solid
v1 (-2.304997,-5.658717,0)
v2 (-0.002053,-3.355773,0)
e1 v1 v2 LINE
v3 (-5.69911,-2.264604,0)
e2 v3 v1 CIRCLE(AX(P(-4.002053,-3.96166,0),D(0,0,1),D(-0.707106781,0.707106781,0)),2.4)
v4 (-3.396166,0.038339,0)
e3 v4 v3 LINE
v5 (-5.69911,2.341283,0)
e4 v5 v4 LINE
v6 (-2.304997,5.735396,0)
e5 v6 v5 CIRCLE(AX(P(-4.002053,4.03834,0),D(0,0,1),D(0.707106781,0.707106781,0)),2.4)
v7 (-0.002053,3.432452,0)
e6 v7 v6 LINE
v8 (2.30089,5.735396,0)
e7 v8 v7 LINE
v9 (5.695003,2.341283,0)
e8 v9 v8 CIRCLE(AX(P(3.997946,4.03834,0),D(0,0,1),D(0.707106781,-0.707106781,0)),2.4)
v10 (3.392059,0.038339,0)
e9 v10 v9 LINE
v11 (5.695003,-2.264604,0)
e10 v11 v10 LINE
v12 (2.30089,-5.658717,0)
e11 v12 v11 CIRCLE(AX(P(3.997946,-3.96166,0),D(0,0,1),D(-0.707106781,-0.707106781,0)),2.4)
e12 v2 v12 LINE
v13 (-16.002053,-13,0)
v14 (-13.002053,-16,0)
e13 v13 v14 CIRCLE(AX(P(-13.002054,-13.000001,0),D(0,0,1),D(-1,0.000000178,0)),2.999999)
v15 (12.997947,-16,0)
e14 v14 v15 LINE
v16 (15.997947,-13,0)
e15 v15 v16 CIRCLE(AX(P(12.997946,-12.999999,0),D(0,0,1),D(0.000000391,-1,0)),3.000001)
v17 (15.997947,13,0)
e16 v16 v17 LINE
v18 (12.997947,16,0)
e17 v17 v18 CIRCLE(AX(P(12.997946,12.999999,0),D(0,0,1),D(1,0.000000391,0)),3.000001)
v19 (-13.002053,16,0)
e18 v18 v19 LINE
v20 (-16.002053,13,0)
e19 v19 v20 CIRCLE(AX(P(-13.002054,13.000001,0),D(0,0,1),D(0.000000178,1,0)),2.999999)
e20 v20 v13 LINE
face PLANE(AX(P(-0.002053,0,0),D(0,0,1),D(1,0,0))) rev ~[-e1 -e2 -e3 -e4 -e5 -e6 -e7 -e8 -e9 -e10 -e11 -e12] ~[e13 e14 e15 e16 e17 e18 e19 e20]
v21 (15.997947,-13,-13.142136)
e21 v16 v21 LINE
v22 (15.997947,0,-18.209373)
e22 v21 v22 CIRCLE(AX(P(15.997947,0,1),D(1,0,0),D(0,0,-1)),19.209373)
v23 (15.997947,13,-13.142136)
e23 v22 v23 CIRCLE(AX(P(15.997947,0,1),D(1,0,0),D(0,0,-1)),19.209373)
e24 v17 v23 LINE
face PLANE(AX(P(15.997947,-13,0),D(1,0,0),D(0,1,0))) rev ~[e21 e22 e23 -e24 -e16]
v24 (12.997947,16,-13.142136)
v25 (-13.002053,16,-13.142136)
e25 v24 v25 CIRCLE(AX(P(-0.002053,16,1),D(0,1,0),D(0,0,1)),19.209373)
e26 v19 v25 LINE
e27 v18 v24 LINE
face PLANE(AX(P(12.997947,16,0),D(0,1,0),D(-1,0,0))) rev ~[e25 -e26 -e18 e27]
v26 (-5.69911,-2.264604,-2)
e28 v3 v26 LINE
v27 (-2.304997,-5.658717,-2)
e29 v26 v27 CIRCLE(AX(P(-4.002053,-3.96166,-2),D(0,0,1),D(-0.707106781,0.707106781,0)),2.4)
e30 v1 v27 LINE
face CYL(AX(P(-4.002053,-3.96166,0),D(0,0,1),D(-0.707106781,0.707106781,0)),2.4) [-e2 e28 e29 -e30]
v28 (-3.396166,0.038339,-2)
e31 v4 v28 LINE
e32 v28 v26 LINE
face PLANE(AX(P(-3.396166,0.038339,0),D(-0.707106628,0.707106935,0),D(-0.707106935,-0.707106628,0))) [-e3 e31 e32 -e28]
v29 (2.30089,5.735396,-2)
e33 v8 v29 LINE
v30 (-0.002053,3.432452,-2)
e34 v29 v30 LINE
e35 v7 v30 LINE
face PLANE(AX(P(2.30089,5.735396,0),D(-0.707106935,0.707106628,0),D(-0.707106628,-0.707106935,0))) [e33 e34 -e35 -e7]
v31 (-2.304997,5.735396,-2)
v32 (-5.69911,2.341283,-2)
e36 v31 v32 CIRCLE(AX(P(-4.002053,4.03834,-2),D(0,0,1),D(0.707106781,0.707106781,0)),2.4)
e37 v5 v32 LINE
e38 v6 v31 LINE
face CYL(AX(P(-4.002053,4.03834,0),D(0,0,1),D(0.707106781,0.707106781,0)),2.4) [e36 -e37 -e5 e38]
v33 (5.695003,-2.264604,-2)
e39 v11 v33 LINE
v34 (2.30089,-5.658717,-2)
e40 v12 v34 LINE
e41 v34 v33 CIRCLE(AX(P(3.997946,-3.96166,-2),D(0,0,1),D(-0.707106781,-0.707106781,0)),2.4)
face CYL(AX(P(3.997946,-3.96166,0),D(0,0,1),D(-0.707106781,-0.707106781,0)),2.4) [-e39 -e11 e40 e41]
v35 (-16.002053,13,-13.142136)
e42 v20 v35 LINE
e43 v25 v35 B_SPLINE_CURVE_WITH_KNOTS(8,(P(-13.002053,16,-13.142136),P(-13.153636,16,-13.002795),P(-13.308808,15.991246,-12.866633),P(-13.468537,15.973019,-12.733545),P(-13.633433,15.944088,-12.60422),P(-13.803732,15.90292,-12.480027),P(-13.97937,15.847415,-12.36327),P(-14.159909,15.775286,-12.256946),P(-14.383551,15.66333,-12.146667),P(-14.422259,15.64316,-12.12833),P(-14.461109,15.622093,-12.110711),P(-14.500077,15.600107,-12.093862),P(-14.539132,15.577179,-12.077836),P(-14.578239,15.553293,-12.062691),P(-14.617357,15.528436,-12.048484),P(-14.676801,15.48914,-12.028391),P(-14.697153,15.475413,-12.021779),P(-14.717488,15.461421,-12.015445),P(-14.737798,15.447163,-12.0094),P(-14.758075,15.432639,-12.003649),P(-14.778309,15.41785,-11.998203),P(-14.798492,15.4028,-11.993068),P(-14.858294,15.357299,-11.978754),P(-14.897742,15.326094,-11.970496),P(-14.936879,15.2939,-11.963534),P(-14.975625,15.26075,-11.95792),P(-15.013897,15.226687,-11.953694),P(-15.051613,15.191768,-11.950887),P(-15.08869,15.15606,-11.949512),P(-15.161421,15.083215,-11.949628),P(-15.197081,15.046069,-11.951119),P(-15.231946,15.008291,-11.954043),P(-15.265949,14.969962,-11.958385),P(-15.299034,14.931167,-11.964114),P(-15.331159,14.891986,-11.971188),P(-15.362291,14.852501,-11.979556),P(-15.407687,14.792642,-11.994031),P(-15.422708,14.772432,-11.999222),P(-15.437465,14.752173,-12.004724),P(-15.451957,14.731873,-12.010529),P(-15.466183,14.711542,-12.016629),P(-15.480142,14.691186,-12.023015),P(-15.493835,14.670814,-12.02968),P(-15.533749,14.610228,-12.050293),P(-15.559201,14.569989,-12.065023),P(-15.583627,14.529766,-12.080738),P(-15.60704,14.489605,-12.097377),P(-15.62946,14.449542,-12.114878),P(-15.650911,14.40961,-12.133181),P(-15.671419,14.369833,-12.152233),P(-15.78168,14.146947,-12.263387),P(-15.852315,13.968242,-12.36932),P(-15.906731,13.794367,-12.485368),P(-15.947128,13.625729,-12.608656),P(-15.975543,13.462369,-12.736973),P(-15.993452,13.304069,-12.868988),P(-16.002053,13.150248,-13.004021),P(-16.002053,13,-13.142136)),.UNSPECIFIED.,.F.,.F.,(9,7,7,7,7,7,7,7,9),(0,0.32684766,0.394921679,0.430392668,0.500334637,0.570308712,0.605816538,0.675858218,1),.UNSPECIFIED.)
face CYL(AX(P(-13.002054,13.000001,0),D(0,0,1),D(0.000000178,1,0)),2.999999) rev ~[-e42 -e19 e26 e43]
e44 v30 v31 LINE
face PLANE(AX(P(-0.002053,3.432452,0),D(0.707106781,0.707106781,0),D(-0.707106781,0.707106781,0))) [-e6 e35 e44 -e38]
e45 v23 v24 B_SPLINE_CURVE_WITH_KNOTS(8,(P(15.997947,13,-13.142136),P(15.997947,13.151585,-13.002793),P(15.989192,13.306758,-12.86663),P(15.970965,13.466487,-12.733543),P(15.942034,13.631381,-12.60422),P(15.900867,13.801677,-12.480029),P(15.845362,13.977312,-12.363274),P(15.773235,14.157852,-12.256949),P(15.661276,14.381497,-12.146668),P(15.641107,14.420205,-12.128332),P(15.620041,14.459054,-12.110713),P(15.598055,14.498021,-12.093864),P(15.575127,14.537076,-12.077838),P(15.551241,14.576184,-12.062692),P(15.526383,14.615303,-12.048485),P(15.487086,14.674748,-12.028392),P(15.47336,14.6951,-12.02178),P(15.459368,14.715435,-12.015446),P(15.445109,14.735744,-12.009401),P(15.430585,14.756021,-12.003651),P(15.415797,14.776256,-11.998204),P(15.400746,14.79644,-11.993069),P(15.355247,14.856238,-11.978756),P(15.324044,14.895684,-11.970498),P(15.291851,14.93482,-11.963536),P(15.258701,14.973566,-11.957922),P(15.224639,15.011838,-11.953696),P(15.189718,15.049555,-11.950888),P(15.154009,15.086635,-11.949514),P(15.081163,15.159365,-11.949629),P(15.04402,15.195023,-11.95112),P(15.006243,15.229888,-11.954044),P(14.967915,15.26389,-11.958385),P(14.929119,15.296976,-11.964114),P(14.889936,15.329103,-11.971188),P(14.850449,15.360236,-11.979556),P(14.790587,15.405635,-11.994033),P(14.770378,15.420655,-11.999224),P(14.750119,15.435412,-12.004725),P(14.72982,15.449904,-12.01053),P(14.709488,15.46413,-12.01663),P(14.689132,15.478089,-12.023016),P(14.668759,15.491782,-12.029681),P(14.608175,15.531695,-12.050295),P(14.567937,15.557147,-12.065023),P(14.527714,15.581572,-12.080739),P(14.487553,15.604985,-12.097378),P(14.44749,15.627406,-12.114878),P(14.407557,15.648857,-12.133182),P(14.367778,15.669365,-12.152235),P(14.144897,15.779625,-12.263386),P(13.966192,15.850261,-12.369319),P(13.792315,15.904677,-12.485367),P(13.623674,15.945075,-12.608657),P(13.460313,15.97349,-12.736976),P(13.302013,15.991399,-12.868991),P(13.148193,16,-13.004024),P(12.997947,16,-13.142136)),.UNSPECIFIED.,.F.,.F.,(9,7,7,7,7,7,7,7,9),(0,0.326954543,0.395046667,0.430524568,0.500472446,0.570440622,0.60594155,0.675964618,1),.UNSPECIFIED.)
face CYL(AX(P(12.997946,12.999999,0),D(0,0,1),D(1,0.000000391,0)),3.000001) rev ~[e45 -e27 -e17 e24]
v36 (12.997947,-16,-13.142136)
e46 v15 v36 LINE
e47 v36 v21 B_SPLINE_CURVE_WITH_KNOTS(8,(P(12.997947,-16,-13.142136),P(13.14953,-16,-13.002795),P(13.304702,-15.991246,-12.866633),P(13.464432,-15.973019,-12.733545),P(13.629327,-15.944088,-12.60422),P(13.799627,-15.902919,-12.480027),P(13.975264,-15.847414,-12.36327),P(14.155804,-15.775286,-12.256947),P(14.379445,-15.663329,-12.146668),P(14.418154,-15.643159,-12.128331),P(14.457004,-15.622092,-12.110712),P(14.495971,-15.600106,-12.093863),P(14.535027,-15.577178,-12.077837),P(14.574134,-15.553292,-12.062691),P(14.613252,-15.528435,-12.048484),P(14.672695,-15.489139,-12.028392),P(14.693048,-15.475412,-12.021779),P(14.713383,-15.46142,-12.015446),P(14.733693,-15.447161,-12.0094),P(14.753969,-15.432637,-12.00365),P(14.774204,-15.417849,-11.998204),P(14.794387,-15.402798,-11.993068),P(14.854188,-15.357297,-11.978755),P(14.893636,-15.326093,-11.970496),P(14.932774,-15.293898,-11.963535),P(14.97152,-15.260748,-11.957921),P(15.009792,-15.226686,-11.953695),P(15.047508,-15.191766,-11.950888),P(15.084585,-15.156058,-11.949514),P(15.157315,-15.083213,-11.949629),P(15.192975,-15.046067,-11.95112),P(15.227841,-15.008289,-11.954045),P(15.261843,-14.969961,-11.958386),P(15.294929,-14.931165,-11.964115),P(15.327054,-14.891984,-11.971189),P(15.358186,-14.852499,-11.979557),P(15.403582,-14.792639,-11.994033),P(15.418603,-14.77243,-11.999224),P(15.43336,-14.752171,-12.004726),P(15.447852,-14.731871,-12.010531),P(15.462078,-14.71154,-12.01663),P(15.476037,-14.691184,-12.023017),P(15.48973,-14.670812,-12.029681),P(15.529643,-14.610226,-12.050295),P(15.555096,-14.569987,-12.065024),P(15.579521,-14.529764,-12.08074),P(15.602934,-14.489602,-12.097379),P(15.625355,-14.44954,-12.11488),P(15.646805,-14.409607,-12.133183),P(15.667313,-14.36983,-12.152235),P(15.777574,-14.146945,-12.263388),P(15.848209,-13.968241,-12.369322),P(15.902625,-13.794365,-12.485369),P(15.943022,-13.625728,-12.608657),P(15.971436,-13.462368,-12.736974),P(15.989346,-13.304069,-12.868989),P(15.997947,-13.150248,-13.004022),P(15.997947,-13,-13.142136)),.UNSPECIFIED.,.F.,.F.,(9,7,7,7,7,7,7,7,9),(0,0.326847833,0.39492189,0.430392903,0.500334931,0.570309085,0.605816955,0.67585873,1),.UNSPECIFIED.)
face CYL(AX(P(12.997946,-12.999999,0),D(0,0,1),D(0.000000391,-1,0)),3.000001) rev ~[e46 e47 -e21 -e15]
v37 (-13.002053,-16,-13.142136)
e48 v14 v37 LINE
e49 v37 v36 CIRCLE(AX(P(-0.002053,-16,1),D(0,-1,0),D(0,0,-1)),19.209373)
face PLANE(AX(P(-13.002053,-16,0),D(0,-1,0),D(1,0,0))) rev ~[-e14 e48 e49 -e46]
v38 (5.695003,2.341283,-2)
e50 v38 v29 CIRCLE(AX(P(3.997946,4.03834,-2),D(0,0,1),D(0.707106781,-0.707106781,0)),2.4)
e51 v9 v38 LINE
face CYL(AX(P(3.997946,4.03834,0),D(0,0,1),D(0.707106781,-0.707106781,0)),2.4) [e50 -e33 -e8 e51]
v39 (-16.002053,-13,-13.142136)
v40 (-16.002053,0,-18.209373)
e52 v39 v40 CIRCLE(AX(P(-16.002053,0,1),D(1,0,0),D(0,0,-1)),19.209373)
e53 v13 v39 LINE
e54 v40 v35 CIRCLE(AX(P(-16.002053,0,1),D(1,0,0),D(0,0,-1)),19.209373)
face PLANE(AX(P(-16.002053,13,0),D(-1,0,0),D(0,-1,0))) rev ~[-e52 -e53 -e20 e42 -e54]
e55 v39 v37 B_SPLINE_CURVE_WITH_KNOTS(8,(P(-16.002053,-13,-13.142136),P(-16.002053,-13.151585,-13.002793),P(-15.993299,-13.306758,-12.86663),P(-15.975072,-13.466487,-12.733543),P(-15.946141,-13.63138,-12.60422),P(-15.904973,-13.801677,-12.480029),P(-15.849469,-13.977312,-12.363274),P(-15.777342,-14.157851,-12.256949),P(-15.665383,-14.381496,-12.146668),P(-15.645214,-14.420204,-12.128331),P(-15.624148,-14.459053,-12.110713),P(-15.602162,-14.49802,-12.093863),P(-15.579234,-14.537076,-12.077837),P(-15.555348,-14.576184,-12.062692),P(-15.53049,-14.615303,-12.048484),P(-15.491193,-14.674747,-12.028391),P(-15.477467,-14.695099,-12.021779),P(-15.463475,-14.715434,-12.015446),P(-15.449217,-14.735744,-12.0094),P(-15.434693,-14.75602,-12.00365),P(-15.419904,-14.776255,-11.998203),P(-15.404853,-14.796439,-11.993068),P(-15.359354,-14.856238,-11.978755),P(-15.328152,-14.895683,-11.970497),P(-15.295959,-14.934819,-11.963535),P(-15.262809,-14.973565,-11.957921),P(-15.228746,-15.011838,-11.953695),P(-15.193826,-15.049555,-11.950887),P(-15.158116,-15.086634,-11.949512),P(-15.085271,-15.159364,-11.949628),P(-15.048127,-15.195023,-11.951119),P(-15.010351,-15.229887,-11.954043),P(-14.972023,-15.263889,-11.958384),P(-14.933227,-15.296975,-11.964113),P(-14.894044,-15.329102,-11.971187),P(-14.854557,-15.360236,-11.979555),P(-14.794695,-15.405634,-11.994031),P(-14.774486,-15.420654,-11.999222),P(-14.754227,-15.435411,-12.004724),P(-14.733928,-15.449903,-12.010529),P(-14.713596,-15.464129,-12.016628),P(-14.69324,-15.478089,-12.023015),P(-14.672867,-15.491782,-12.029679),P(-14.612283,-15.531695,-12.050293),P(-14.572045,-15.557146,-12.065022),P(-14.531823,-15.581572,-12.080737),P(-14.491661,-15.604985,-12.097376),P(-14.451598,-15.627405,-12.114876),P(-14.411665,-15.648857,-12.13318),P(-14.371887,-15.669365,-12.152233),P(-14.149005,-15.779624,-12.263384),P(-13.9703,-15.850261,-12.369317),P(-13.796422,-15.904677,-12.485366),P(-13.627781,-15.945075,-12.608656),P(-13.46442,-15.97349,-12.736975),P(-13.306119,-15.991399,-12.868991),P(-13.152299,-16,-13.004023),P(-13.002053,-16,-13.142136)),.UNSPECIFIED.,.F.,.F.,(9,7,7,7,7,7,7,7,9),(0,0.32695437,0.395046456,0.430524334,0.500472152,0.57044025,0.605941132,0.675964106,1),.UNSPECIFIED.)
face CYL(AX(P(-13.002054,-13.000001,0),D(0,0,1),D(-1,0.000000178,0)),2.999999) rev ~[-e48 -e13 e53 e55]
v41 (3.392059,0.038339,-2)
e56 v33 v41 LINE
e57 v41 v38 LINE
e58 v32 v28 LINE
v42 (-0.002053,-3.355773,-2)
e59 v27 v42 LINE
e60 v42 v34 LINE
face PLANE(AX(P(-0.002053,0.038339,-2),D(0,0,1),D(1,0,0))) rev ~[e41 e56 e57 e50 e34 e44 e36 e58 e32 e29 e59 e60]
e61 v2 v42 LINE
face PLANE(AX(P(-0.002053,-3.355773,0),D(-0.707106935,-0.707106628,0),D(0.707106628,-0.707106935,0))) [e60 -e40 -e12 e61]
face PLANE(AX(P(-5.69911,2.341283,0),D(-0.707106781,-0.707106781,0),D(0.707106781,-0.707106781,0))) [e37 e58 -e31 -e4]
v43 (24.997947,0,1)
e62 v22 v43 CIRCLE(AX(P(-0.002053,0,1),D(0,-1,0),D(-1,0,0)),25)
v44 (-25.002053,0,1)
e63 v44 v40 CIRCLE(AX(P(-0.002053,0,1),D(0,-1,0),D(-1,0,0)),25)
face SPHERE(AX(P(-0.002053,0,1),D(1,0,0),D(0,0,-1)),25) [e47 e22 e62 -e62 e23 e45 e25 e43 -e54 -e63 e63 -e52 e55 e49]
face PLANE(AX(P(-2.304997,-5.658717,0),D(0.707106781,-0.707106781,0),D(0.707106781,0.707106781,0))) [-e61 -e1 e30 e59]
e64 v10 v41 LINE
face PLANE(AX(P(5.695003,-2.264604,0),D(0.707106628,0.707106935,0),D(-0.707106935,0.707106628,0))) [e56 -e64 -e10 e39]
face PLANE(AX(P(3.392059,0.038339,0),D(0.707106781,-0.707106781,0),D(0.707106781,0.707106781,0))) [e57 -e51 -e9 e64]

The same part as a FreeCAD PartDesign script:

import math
import FreeCAD as App
import Part
import Sketcher
from FreeCAD import Vector
Q = App.Units.Quantity

doc = App.newDocument("Part")
body = doc.addObject("PartDesign::Body", "Body")

sketch1 = body.newObject("Sketcher::SketchObject", "Sketch")
sketch1.AttachmentSupport = (doc.getObject("XY_Plane"), [""])
sketch1.MapMode = "FlatFace"
sketch1.addGeometry([
    Part.LineSegment(Vector(0, 3.4, 0), Vector(-2.3, 5.7, 0)),
    Part.ArcOfCircle(Part.Circle(Vector(-4, 4, 0), Vector(0, 0, 1), 2.4), math.radians(45), math.radians(225)),
    Part.LineSegment(Vector(-5.7, 2.3, 0), Vector(-3.4, 0, 0)),
    Part.LineSegment(Vector(-3.4, 0, 0), Vector(-5.7, -2.3, 0)),
    Part.ArcOfCircle(Part.Circle(Vector(-4, -4, 0), Vector(0, 0, 1), 2.4), math.radians(135), math.radians(315)),
    Part.LineSegment(Vector(-2.3, -5.7, 0), Vector(0, -3.4, 0)),
    Part.LineSegment(Vector(0, -3.4, 0), Vector(2.3, -5.7, 0)),
    Part.ArcOfCircle(Part.Circle(Vector(4, -4, 0), Vector(0, 0, 1), 2.4), math.radians(-135), math.radians(45)),
    Part.LineSegment(Vector(5.7, -2.3, 0), Vector(3.4, 0, 0)),
    Part.LineSegment(Vector(3.4, 0, 0), Vector(5.7, 2.3, 0)),
    Part.ArcOfCircle(Part.Circle(Vector(4, 4, 0), Vector(0, 0, 1), 2.4), math.radians(-45), math.radians(135)),
    Part.LineSegment(Vector(2.3, 5.7, 0), Vector(0, 3.4, 0)),
], False)
sketch1.addConstraint([
    Sketcher.Constraint("Tangent", 0, 2, 1, 1),
    Sketcher.Constraint("Tangent", 1, 2, 2, 1),
    Sketcher.Constraint("Coincident", 2, 2, 3, 1),
    Sketcher.Constraint("Tangent", 3, 2, 4, 1),
    Sketcher.Constraint("Tangent", 4, 2, 5, 1),
    Sketcher.Constraint("Coincident", 5, 2, 6, 1),
    Sketcher.Constraint("Tangent", 6, 2, 7, 1),
    Sketcher.Constraint("Tangent", 7, 2, 8, 1),
    Sketcher.Constraint("Coincident", 8, 2, 9, 1),
    Sketcher.Constraint("Tangent", 9, 2, 10, 1),
    Sketcher.Constraint("Tangent", 10, 2, 11, 1),
    Sketcher.Constraint("Coincident", 11, 2, 0, 1),
    Sketcher.Constraint("Equal", 1, 4),
    Sketcher.Constraint("Equal", 4, 7),
    Sketcher.Constraint("Equal", 7, 10),
    Sketcher.Constraint("Parallel", 0, 2),
    Sketcher.Constraint("Perpendicular", 2, 3),
    Sketcher.Constraint("Parallel", 3, 5),
    Sketcher.Constraint("Perpendicular", 5, 6),
    Sketcher.Constraint("Parallel", 6, 8),
    Sketcher.Constraint("Perpendicular", 8, 9),
    Sketcher.Constraint("Parallel", 9, 11),
    Sketcher.Constraint("Horizontal", 4, 3, 7, 3),
    Sketcher.Constraint("Horizontal", 1, 3, 10, 3),
    Sketcher.Constraint("Horizontal", 4, 2, 6, 2),
    Sketcher.Constraint("Horizontal", 2, 2, 8, 2),
    Sketcher.Constraint("Vertical", 1, 3, 4, 3),
    Sketcher.Constraint("Equal", 0, 2),
    Sketcher.Constraint("Radius", 1, Q("2.4 mm")),
    Sketcher.Constraint("DistanceY", 4, 3, 1, 3, Q("8 mm")),
    Sketcher.Constraint("DistanceY", -1, 1, 1, 3, Q("4.03834 mm")),
    Sketcher.Constraint("DistanceX", 1, 2, -1, 1, Q("5.69911 mm")),
])
pad1 = body.newObject("PartDesign::Pad", "Pad")
pad1.Profile = sketch1
pad1.Length = 2
body2 = doc.addObject("PartDesign::Body", "Body001")

sketch2 = body2.newObject("Sketcher::SketchObject", "Sketch001")
sketch2.AttachmentSupport = (doc.getObject("XZ_Plane001"), [""])
sketch2.MapMode = "FlatFace"
sketch2.addGeometry([
    Part.LineSegment(Vector(25, 1, 0), Vector(-25, 1, 0)),
    Part.ArcOfCircle(Part.Circle(Vector(0, 1, 0), Vector(0, 0, 1), 25), math.radians(180), math.radians(360)),
], False)
sketch2.addGeometry(Part.LineSegment(Vector(-25, 1, 0), Vector(25, 1, 0)), True)
sketch2.addConstraint([
    Sketcher.Constraint("Coincident", 0, 1, 1, 2),
    Sketcher.Constraint("Coincident", 1, 1, 0, 2),
    Sketcher.Constraint("Horizontal", 0),
    Sketcher.Constraint("Horizontal", 2),
    Sketcher.Constraint("Coincident", 2, 1, 1, 1),
    Sketcher.Constraint("Horizontal", 1, 3, 0, 1),
    Sketcher.Constraint("Equal", 0, 2),
    Sketcher.Constraint("Radius", 1, Q("25 mm")),
    Sketcher.Constraint("DistanceY", -1, 1, 1, 3, Q("1 mm")),
    Sketcher.Constraint("DistanceX", 1, 3, -1, 1, Q("0.002053 mm")),
])
revolution = body2.newObject("PartDesign::Revolution", "Revolution")
revolution.Profile = sketch2
revolution.ReferenceAxis = (sketch2, ["Axis0"])
revolution.Angle = 360

sketch3 = body2.newObject("Sketcher::SketchObject", "Sketch002")
sketch3.AttachmentSupport = (doc.getObject("XY_Plane001"), [""])
sketch3.MapMode = "FlatFace"
sketch3.addGeometry([
    Part.LineSegment(Vector(13, 16, 0), Vector(-13, 16, 0)),
    Part.ArcOfCircle(Part.Circle(Vector(-13, 13, 0), Vector(0, 0, 1), 3), math.radians(90), math.radians(180)),
    Part.LineSegment(Vector(-16, 13, 0), Vector(-16, -13, 0)),
    Part.ArcOfCircle(Part.Circle(Vector(-13, -13, 0), Vector(0, 0, 1), 3), math.radians(180), math.radians(270)),
    Part.LineSegment(Vector(-13, -16, 0), Vector(13, -16, 0)),
    Part.ArcOfCircle(Part.Circle(Vector(13, -13, 0), Vector(0, 0, 1), 3), math.radians(-90), math.radians(0)),
    Part.LineSegment(Vector(16, -13, 0), Vector(16, 13, 0)),
    Part.ArcOfCircle(Part.Circle(Vector(13, 13, 0), Vector(0, 0, 1), 3), math.radians(0), math.radians(90)),
], False)
sketch3.addConstraint([
    Sketcher.Constraint("Tangent", 0, 2, 1, 1),
    Sketcher.Constraint("Tangent", 1, 2, 2, 1),
    Sketcher.Constraint("Tangent", 2, 2, 3, 1),
    Sketcher.Constraint("Tangent", 3, 2, 4, 1),
    Sketcher.Constraint("Tangent", 4, 2, 5, 1),
    Sketcher.Constraint("Tangent", 5, 2, 6, 1),
    Sketcher.Constraint("Tangent", 6, 2, 7, 1),
    Sketcher.Constraint("Tangent", 7, 2, 0, 1),
    Sketcher.Constraint("Horizontal", 0),
    Sketcher.Constraint("Vertical", 2),
    Sketcher.Constraint("Horizontal", 4),
    Sketcher.Constraint("Vertical", 6),
    Sketcher.Constraint("Equal", 1, 3),
    Sketcher.Constraint("Equal", 3, 5),
    Sketcher.Constraint("Equal", 5, 7),
    Sketcher.Constraint("Equal", 4, 2),
    Sketcher.Constraint("Radius", 1, Q("2.999999 mm")),
    Sketcher.Constraint("DistanceX", 0, 2, 0, 1, Q("26 mm")),
    Sketcher.Constraint("DistanceY", -1, 1, 1, 3, Q("13.000001 mm")),
    Sketcher.Constraint("DistanceX", 1, 3, -1, 1, Q("13.002054 mm")),
])
pocket1 = body2.newObject("PartDesign::Pocket", "Pocket")
pocket1.Profile = sketch3
pocket1.Length = 25
doc.recompute()

boolean = body.newObject("PartDesign::Boolean", "Boolean")
boolean.Type = "Fuse"
boolean.addObjects([body2])

sketch4 = body.newObject("Sketcher::SketchObject", "Sketch003")
sketch4.AttachmentSupport = (doc.getObject("XY_Plane"), [""])
sketch4.MapMode = "FlatFace"
sketch4.addGeometry([
    Part.LineSegment(Vector(0, 3.4, 0), Vector(-2.3, 5.7, 0)),
    Part.ArcOfCircle(Part.Circle(Vector(-4, 4, 0), Vector(0, 0, 1), 2.4), math.radians(45), math.radians(225)),
    Part.LineSegment(Vector(-5.7, 2.3, 0), Vector(-3.4, 0, 0)),
    Part.LineSegment(Vector(-3.4, 0, 0), Vector(-5.7, -2.3, 0)),
    Part.ArcOfCircle(Part.Circle(Vector(-4, -4, 0), Vector(0, 0, 1), 2.4), math.radians(135), math.radians(315)),
    Part.LineSegment(Vector(-2.3, -5.7, 0), Vector(0, -3.4, 0)),
    Part.LineSegment(Vector(0, -3.4, 0), Vector(2.3, -5.7, 0)),
    Part.ArcOfCircle(Part.Circle(Vector(4, -4, 0), Vector(0, 0, 1), 2.4), math.radians(-135), math.radians(45)),
    Part.LineSegment(Vector(5.7, -2.3, 0), Vector(3.4, 0, 0)),
    Part.LineSegment(Vector(3.4, 0, 0), Vector(5.7, 2.3, 0)),
    Part.ArcOfCircle(Part.Circle(Vector(4, 4, 0), Vector(0, 0, 1), 2.4), math.radians(-45), math.radians(135)),
    Part.LineSegment(Vector(2.3, 5.7, 0), Vector(0, 3.4, 0)),
], False)
sketch4.addConstraint([
    Sketcher.Constraint("Tangent", 0, 2, 1, 1),
    Sketcher.Constraint("Tangent", 1, 2, 2, 1),
    Sketcher.Constraint("Coincident", 2, 2, 3, 1),
    Sketcher.Constraint("Tangent", 3, 2, 4, 1),
    Sketcher.Constraint("Tangent", 4, 2, 5, 1),
    Sketcher.Constraint("Coincident", 5, 2, 6, 1),
    Sketcher.Constraint("Tangent", 6, 2, 7, 1),
    Sketcher.Constraint("Tangent", 7, 2, 8, 1),
    Sketcher.Constraint("Coincident", 8, 2, 9, 1),
    Sketcher.Constraint("Tangent", 9, 2, 10, 1),
    Sketcher.Constraint("Tangent", 10, 2, 11, 1),
    Sketcher.Constraint("Coincident", 11, 2, 0, 1),
    Sketcher.Constraint("Equal", 1, 4),
    Sketcher.Constraint("Equal", 4, 7),
    Sketcher.Constraint("Equal", 7, 10),
    Sketcher.Constraint("Parallel", 0, 2),
    Sketcher.Constraint("Perpendicular", 2, 3),
    Sketcher.Constraint("Parallel", 3, 5),
    Sketcher.Constraint("Perpendicular", 5, 6),
    Sketcher.Constraint("Parallel", 6, 8),
    Sketcher.Constraint("Perpendicular", 8, 9),
    Sketcher.Constraint("Parallel", 9, 11),
    Sketcher.Constraint("Horizontal", 4, 3, 7, 3),
    Sketcher.Constraint("Horizontal", 1, 3, 10, 3),
    Sketcher.Constraint("Horizontal", 4, 2, 6, 2),
    Sketcher.Constraint("Horizontal", 2, 2, 8, 2),
    Sketcher.Constraint("Vertical", 1, 3, 4, 3),
    Sketcher.Constraint("Equal", 0, 2),
    Sketcher.Constraint("Radius", 1, Q("2.4 mm")),
    Sketcher.Constraint("DistanceY", 4, 3, 1, 3, Q("8 mm")),
    Sketcher.Constraint("DistanceY", -1, 1, 1, 3, Q("4.03834 mm")),
    Sketcher.Constraint("DistanceX", 1, 2, -1, 1, Q("5.69911 mm")),
])
pad2 = body.newObject("PartDesign::Pad", "Pad001")
pad2.Profile = sketch4
pad2.Length = 2
pad2.Reversed = True

doc.recompute()
